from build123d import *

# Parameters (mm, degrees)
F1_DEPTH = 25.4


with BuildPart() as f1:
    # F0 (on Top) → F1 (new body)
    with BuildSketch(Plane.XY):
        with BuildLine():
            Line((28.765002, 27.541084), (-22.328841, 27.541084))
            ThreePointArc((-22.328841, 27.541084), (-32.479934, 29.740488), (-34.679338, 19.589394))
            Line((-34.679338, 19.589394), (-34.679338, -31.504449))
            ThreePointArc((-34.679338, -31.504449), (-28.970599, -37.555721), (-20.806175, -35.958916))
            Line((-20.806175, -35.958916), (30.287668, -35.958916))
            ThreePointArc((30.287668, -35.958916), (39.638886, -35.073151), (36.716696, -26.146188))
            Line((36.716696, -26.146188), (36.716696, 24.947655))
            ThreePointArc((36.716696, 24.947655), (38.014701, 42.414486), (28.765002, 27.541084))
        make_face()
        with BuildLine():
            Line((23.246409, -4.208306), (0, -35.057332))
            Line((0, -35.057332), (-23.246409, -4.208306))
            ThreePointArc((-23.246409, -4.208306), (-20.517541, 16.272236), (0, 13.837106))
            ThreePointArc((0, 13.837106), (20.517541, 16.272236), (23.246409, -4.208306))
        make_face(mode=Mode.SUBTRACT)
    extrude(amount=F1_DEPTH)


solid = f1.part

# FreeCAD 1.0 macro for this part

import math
import FreeCAD as App
import Part
import Sketcher
Q = App.Units.Quantity

doc = App.newDocument("Part")
params = doc.addObject("Spreadsheet::Sheet", "Params")
for row, (alias, value) in enumerate([
    ("pad1_length", "1 in"),
], start=1):
    params.set(f"A{row}", alias)
    params.set(f"B{row}", "=" + value)
    params.setAlias(f"B{row}", alias)

body = doc.addObject("PartDesign::Body", "Body")

# Sketch on XY plane
sketch1 = body.newObject("Sketcher::SketchObject", "Sketch")
sketch1.AttachmentSupport = (doc.getObject("XY_Plane"), [""])
sketch1.MapMode = "FlatFace"
sketch1.addGeometry([
    Part.LineSegment(App.Vector(28.765002, 27.541084, 0), App.Vector(-22.328841, 27.541084, 0)),  # 0
    Part.ArcOfCircle(Part.Circle(App.Vector(-28.50409, 23.565239, 0), App.Vector(0, 0, 1), 7.344456), math.radians(32.774877), math.radians(212.774879)),  # 1
    Part.LineSegment(App.Vector(-34.679338, 19.589394, 0), App.Vector(-34.679338, -31.504449, 0)),  # 2
    Part.ArcOfCircle(Part.Circle(App.Vector(-26.336642, -29.352426, 0), App.Vector(0, 0, 1), 8.615786), math.radians(-165.5357), math.radians(-50.066409)),  # 3
    Part.LineSegment(App.Vector(-20.806175, -35.958916, 0), App.Vector(30.287668, -35.958916, 0)),  # 4
    Part.ArcOfCircle(Part.Circle(App.Vector(34.609187, -31.777831, 0), App.Vector(0, 0, 1), 6.013069), math.radians(-135.94625), math.radians(69.482834)),  # 5
    Part.LineSegment(App.Vector(36.716696, -26.146188, 0), App.Vector(36.716696, 24.947655, 0)),  # 6
    Part.ArcOfCircle(Part.Circle(App.Vector(35.218359, 33.840645, 0), App.Vector(0, 0, 1), 9.01833), math.radians(-80.43633), math.radians(224.309065)),  # 7
    Part.ArcOfCircle(Part.Circle(App.Vector(11.493908, 4.647838, 0), App.Vector(0, 0, 1), 14.715725), math.radians(-37), math.radians(141.358005)),  # 8
    Part.LineSegment(App.Vector(23.246409, -4.208306, 0), App.Vector(0, -35.057332, 0)),  # 9
    Part.LineSegment(App.Vector(0, -35.057332, 0), App.Vector(-23.246409, -4.208306, 0)),  # 10
    Part.ArcOfCircle(Part.Circle(App.Vector(-11.493908, 4.647838, 0), App.Vector(0, 0, 1), 14.715725), math.radians(38.641995), math.radians(217)),  # 11
], False)
sketch1.addConstraint([
    Sketcher.Constraint("Coincident", 0, 2, 1, 1),
    Sketcher.Constraint("Coincident", 1, 2, 2, 1),
    Sketcher.Constraint("Coincident", 2, 2, 3, 1),
    Sketcher.Constraint("Coincident", 3, 2, 4, 1),
    Sketcher.Constraint("Coincident", 4, 2, 5, 1),
    Sketcher.Constraint("Coincident", 5, 2, 6, 1),
    Sketcher.Constraint("Coincident", 6, 2, 7, 1),
    Sketcher.Constraint("Coincident", 7, 2, 0, 1),
    Sketcher.Constraint("Tangent", 8, 1, 9, 1),
    Sketcher.Constraint("Coincident", 9, 2, 10, 1),
    Sketcher.Constraint("Tangent", 10, 2, 11, 2),
    Sketcher.Constraint("Coincident", 11, 1, 8, 2),
    Sketcher.Constraint("Horizontal", 0),
    Sketcher.Constraint("Vertical", 2),
    Sketcher.Constraint("Horizontal", 4),
    Sketcher.Constraint("Vertical", 6),
    Sketcher.Constraint("Equal", 8, 11),
    Sketcher.Constraint("Symmetric", 8, 3, 11, 3, -2),
    Sketcher.Constraint("PointOnObject", 9, 2, -2),
    Sketcher.Constraint("Equal", 0, 4),
    Sketcher.Constraint("Equal", 4, 2),
    Sketcher.Constraint("Equal", 2, 6),
    Sketcher.Constraint("Angle", 9, Q("-127.000001 deg")),
    Sketcher.Constraint("Radius", 5, Q("6.013069 mm")),
    Sketcher.Constraint("Radius", 7, Q("9.01833 mm")),
    Sketcher.Constraint("Radius", 1, Q("7.344456 mm")),
    Sketcher.Constraint("Radius", 3, Q("8.615786 mm")),
    Sketcher.Constraint("Radius", 8, Q("14.715725 mm")),
    Sketcher.Constraint("DistanceX", 3, 3, 7, 3, Q("61.555001 mm")),
    Sketcher.Constraint("DistanceY", 8, 3, 1, 3, Q("18.917401 mm")),
    Sketcher.Constraint("DistanceX", 3, 3, 0, 2, Q("4.007801 mm")),
    Sketcher.Constraint("DistanceY", 9, 2, 5, 3, Q("3.279501 mm")),
    Sketcher.Constraint("DistanceY", 10, 2, 1, 2, Q("23.7977 mm")),
    Sketcher.Constraint("DistanceX", 0, 2, 0, 1, Q("51.093843 mm")),
    Sketcher.Constraint("DistanceX", 1, 3, -1, 1, Q("28.50409 mm")),
    Sketcher.Constraint("DistanceY", -1, 1, 1, 3, Q("23.565239 mm")),
    Sketcher.Constraint("DistanceY", 5, 3, -1, 1, Q("31.777831 mm")),
    Sketcher.Constraint("DistanceX", -1, 1, 7, 3, Q("35.218359 mm")),
    Sketcher.Constraint("DistanceX", -1, 1, 4, 2, Q("30.287668 mm")),
])
pad1 = body.newObject("PartDesign::Pad", "Pad")
pad1.Profile = sketch1
pad1.setExpression("Length", "Params.pad1_length")

doc.recompute()
